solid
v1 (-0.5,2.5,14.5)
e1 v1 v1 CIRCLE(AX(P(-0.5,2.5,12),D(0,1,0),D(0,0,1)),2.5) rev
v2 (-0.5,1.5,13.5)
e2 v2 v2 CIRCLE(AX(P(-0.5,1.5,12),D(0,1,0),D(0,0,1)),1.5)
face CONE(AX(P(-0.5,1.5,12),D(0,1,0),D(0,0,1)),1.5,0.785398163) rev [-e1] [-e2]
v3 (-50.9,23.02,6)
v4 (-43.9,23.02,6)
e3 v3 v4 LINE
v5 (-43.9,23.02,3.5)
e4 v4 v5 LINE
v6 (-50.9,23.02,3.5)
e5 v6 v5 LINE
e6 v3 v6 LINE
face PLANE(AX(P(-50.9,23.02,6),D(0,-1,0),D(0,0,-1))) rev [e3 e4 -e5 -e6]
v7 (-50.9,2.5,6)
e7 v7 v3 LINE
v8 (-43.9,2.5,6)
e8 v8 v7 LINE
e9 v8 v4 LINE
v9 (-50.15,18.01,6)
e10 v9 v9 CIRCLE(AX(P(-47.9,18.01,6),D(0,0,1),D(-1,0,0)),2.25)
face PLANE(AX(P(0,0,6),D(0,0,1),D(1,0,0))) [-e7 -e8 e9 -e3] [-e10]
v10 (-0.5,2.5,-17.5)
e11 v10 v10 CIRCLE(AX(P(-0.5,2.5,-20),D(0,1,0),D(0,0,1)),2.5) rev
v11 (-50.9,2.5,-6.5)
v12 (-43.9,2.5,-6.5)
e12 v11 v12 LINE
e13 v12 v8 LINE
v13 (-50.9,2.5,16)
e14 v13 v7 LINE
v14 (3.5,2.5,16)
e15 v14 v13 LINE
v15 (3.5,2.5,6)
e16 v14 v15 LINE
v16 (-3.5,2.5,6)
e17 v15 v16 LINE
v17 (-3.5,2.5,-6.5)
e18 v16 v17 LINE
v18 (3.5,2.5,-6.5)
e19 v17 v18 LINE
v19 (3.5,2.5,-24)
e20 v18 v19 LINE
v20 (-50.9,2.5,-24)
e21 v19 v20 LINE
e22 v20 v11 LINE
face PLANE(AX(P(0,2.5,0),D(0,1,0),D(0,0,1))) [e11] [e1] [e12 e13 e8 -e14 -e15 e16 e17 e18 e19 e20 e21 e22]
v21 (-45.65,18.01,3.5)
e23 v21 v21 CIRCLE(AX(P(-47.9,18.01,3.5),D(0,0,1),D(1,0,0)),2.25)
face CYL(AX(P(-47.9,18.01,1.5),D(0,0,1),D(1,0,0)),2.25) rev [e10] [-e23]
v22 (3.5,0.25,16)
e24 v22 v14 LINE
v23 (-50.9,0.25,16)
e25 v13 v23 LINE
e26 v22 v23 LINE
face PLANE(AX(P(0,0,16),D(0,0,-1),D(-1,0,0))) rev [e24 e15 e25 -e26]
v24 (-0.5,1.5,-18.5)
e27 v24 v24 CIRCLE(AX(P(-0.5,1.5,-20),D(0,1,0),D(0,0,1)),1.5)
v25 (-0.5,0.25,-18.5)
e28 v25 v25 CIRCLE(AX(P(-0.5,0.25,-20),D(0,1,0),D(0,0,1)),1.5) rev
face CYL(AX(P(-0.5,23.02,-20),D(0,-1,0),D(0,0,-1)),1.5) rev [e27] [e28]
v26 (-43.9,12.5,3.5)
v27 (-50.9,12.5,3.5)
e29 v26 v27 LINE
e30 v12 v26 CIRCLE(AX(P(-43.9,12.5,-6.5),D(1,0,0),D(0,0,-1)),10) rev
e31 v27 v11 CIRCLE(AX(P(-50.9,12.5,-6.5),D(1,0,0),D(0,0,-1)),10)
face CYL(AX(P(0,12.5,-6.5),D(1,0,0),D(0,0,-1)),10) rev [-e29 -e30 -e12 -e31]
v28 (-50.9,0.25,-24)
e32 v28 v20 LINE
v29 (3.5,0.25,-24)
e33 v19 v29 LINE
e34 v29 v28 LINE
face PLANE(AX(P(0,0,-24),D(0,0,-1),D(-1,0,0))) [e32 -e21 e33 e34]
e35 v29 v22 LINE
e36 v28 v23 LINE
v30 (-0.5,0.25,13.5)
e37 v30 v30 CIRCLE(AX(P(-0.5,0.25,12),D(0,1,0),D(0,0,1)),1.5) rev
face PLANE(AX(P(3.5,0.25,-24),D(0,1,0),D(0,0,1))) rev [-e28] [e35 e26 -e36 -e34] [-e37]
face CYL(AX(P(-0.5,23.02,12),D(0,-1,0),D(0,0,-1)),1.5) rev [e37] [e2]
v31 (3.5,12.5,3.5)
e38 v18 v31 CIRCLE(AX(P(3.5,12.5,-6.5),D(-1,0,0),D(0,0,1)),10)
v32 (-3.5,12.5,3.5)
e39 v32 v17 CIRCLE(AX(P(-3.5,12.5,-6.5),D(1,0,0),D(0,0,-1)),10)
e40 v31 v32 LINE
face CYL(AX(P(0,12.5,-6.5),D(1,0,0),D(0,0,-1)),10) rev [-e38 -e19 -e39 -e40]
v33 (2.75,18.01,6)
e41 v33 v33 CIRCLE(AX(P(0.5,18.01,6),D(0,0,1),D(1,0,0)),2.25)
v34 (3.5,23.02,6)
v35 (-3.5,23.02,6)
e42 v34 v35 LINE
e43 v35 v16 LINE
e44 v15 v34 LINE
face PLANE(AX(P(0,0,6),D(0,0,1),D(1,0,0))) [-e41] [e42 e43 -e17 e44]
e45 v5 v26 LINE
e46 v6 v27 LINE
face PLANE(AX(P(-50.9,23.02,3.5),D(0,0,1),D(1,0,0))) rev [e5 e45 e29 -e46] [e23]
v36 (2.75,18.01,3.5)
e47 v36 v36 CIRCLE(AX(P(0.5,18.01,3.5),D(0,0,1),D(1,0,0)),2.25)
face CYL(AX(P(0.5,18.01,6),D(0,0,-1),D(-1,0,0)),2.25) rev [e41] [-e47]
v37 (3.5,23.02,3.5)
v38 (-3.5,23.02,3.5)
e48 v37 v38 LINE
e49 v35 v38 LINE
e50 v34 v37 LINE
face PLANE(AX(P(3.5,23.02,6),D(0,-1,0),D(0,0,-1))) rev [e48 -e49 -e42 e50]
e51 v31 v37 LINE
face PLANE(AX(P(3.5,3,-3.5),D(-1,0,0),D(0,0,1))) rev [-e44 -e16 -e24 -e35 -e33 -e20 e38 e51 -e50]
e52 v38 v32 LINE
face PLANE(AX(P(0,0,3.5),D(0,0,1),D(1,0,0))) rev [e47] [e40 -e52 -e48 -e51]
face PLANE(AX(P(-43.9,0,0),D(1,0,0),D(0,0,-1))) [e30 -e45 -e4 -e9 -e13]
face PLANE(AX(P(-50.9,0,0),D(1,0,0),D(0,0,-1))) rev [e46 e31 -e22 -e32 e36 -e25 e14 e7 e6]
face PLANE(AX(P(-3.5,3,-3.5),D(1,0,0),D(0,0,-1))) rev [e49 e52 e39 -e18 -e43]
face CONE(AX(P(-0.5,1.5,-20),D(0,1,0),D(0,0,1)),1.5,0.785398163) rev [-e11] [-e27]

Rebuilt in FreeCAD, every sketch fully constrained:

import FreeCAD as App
import Part
import Sketcher
from FreeCAD import Vector
Q = App.Units.Quantity


def edges_at(feature, points):
    """Names of the edges that pass closest to the given points."""
    edges = feature.Shape.Edges
    near = lambda p: min(range(len(edges)), key=lambda i: edges[i].distToShape(Part.Vertex(*p))[0])
    return sorted({f"Edge{near(p) + 1}" for p in points})


def add_polygon(sketch, points):
    """Adds a closed chain of lines whose ends are joined by coincident constraints."""
    first, n = sketch.GeometryCount, len(points)
    for a, b in zip(points, points[1:] + points[:1]):
        sketch.addGeometry(Part.LineSegment(App.Vector(*a, 0), App.Vector(*b, 0)), False)
    for i in range(n):
        sketch.addConstraint(Sketcher.Constraint("Coincident", first + i, 2, first + (i + 1) % n, 1))

doc = App.newDocument("Part")
body = doc.addObject("PartDesign::Body", "Body")

sketch1 = body.newObject("Sketcher::SketchObject", "Sketch")
sketch1.AttachmentSupport = (doc.getObject("XZ_Plane"), [""])
sketch1.MapMode = "FlatFace"
add_polygon(sketch1, [(-4, -4), (-4, 4), (4, 4), (4, -4)])
sketch1.addConstraint(Sketcher.Constraint("Vertical", 0))
sketch1.addConstraint(Sketcher.Constraint("Horizontal", 1))
sketch1.addConstraint(Sketcher.Constraint("Vertical", 2))
sketch1.addConstraint(Sketcher.Constraint("Horizontal", 3))
sketch1.addConstraint(Sketcher.Constraint("Symmetric", 0, 2, 2, 2, -1, 1))
sketch1.addConstraint(Sketcher.Constraint("Equal", 3, 0))
sketch1.addConstraint(Sketcher.Constraint("DistanceX", 1, 1, 1, 2, Q("7 mm")))
pad1 = body.newObject("PartDesign::Pad", "Pad")
pad1.Profile = sketch1
pad1.Length = 3
pad1.Reversed = True

sketch2 = body.newObject("Sketcher::SketchObject", "Sketch001")
sketch2.AttachmentSupport = (doc.getObject("XY_Plane"), [""])
sketch2.MapMode = "FlatFace"
sketch2.AttachmentOffset = App.Placement(Vector(0, 0, 3.5), App.Rotation())
add_polygon(sketch2, [(3.5, 23), (-3.5, 23), (-3.5, 0), (3.5, 0)])
sketch2.addGeometry(Part.Circle(Vector(0.5, 18, 0), Vector(0, 0, 1), 2.2), False)
sketch2.addConstraint(Sketcher.Constraint("Horizontal", 0))
sketch2.addConstraint(Sketcher.Constraint("Vertical", 1))
sketch2.addConstraint(Sketcher.Constraint("Horizontal", 2))
sketch2.addConstraint(Sketcher.Constraint("Vertical", 3))
sketch2.addConstraint(Sketcher.Constraint("Symmetric", 1, 2, 2, 2, -1, 1))
sketch2.addConstraint(Sketcher.Constraint("Diameter", 4, Q("4.5 mm")))
sketch2.addConstraint(Sketcher.Constraint("DistanceX", 0, 2, 0, 1, Q("7 mm")))
sketch2.addConstraint(Sketcher.Constraint("DistanceX", 0, 2, 4, 3, Q("4 mm")))
sketch2.addConstraint(Sketcher.Constraint("DistanceY", 1, 2, 1, 1, Q("23.02 mm")))
sketch2.addConstraint(Sketcher.Constraint("DistanceY", -1, 1, 4, 3, Q("18.01 mm")))
pad2 = body.newObject("PartDesign::Pad", "Pad001")
pad2.Profile = sketch2
pad2.Length = 2.5

sketch3 = body.newObject("Sketcher::SketchObject", "Sketch002")
sketch3.AttachmentSupport = (doc.getObject("XZ_Plane"), [""])
sketch3.MapMode = "FlatFace"
add_polygon(sketch3, [(-4, 6), (-4, -4), (4, -4), (4, 6)])
sketch3.addConstraint(Sketcher.Constraint("Vertical", 0))
sketch3.addConstraint(Sketcher.Constraint("Horizontal", 1))
sketch3.addConstraint(Sketcher.Constraint("Vertical", 2))
sketch3.addConstraint(Sketcher.Constraint("Horizontal", 3))
sketch3.addConstraint(Sketcher.Constraint("DistanceX", 1, 1, 1, 2, Q("7 mm")))
sketch3.addConstraint(Sketcher.Constraint("DistanceY", 0, 2, 0, 1, Q("9.5 mm")))
sketch3.addConstraint(Sketcher.Constraint("DistanceY", -1, 1, 2, 2, Q("6 mm")))
sketch3.addConstraint(Sketcher.Constraint("DistanceX", 0, 2, -1, 1, Q("3.5 mm")))
pad3 = body.newObject("PartDesign::Pad", "Pad002")
pad3.Profile = sketch3
pad3.Length = 2

sketch4 = body.newObject("Sketcher::SketchObject", "Sketch003")
sketch4.AttachmentSupport = (doc.getObject("XY_Plane"), [""])
sketch4.MapMode = "FlatFace"
sketch4.AttachmentOffset = App.Placement(Vector(0, 0, -3.5), App.Rotation())
add_polygon(sketch4, [(4, 3), (4, -2), (-4, -2), (-4, 3)])
sketch4.addConstraint(Sketcher.Constraint("Vertical", 0))
sketch4.addConstraint(Sketcher.Constraint("Horizontal", 1))
sketch4.addConstraint(Sketcher.Constraint("Vertical", 2))
sketch4.addConstraint(Sketcher.Constraint("Horizontal", 3))
sketch4.addConstraint(Sketcher.Constraint("DistanceX", 1, 2, 1, 1, Q("7 mm")))
sketch4.addConstraint(Sketcher.Constraint("DistanceY", 0, 2, 0, 1, Q("5 mm")))
sketch4.addConstraint(Sketcher.Constraint("DistanceY", 0, 2, -1, 1, Q("2 mm")))
sketch4.addConstraint(Sketcher.Constraint("DistanceX", -1, 1, 0, 2, Q("3.5 mm")))
pad4 = body.newObject("PartDesign::Pad", "Pad003")
pad4.Profile = sketch4
pad4.Length = 20.02
pad4.Reversed = True

sketch5 = body.newObject("Sketcher::SketchObject", "Sketch004")
sketch5.AttachmentSupport = (doc.getObject("YZ_Plane"), [""])
sketch5.MapMode = "FlatFace"
sketch5.AttachmentOffset = App.Placement(Vector(0, 0, -3.5), App.Rotation())
add_polygon(sketch5, [(3, -24), (-2, -24), (-2, 6), (3, 6)])
sketch5.addConstraint(Sketcher.Constraint("Horizontal", 0))
sketch5.addConstraint(Sketcher.Constraint("Vertical", 1))
sketch5.addConstraint(Sketcher.Constraint("Horizontal", 2))
sketch5.addConstraint(Sketcher.Constraint("Vertical", 3))
sketch5.addConstraint(Sketcher.Constraint("DistanceX", 0, 2, 0, 1, Q("5 mm")))
sketch5.addConstraint(Sketcher.Constraint("DistanceX", 0, 2, -1, 1, Q("2 mm")))
sketch5.addConstraint(Sketcher.Constraint("DistanceY", -1, 1, 1, 2, Q("6 mm")))
sketch5.addConstraint(Sketcher.Constraint("DistanceY", 1, 1, 1, 2, Q("29.52 mm")))
pad5 = body.newObject("PartDesign::Pad", "Pad004")
pad5.Profile = sketch5
pad5.Length = 40.4
pad5.Reversed = True

sketch6 = body.newObject("Sketcher::SketchObject", "Sketch005")
sketch6.AttachmentSupport = (doc.getObject("YZ_Plane"), [""])
sketch6.MapMode = "FlatFace"
sketch6.AttachmentOffset = App.Placement(Vector(0, 0, -43.9), App.Rotation())
add_polygon(sketch6, [(23, 6), (23, 3.5), (3, 3.5), (3, -23.5), (-2, -23.5), (-2, 6)])
sketch6.addConstraint(Sketcher.Constraint("Vertical", 0))
sketch6.addConstraint(Sketcher.Constraint("Horizontal", 1))
sketch6.addConstraint(Sketcher.Constraint("Vertical", 2))
sketch6.addConstraint(Sketcher.Constraint("Horizontal", 3))
sketch6.addConstraint(Sketcher.Constraint("Vertical", 4))
sketch6.addConstraint(Sketcher.Constraint("Horizontal", 5))
sketch6.addConstraint(Sketcher.Constraint("DistanceX", 3, 2, 3, 1, Q("5 mm")))
sketch6.addConstraint(Sketcher.Constraint("DistanceY", 0, 2, 0, 1, Q("2.5 mm")))
sketch6.addConstraint(Sketcher.Constraint("DistanceX", -1, 1, 1, 2, Q("3 mm")))
sketch6.addConstraint(Sketcher.Constraint("DistanceY", -1, 1, 4, 2, Q("6 mm")))
sketch6.addConstraint(Sketcher.Constraint("DistanceX", 1, 2, 1, 1, Q("20.02 mm")))
sketch6.addConstraint(Sketcher.Constraint("DistanceY", 2, 2, 2, 1, Q("27.02 mm")))
pad6 = body.newObject("PartDesign::Pad", "Pad005")
pad6.Profile = sketch6
pad6.Length = 7
pad6.Reversed = True

sketch7 = body.newObject("Sketcher::SketchObject", "Sketch006")
sketch7.AttachmentSupport = (doc.getObject("XY_Plane"), [""])
sketch7.MapMode = "FlatFace"
sketch7.AttachmentOffset = App.Placement(Vector(0, 0, 6), App.Rotation())
sketch7.addGeometry(Part.Circle(Vector(-47.9, 18, 0), Vector(0, 0, 1), 2.2), False)
sketch7.addConstraint(Sketcher.Constraint("Diameter", 0, Q("4.5 mm")))
sketch7.addConstraint(Sketcher.Constraint("DistanceX", 0, 3, -1, 1, Q("47.9 mm")))
sketch7.addConstraint(Sketcher.Constraint("DistanceY", -1, 1, 0, 3, Q("18.01 mm")))
pocket1 = body.newObject("PartDesign::Pocket", "Pocket")
pocket1.Profile = sketch7
pocket1.Length = 4.5

sketch8 = body.newObject("Sketcher::SketchObject", "Sketch007")
sketch8.AttachmentSupport = (doc.getObject("XY_Plane"), [""])
sketch8.MapMode = "FlatFace"
sketch8.AttachmentOffset = App.Placement(Vector(0, 0, -23.52), App.Rotation())
add_polygon(sketch8, [(4, 3), (4, -2), (-51, -2), (-51, 3)])
sketch8.addConstraint(Sketcher.Constraint("Vertical", 0))
sketch8.addConstraint(Sketcher.Constraint("Horizontal", 1))
sketch8.addConstraint(Sketcher.Constraint("Vertical", 2))
sketch8.addConstraint(Sketcher.Constraint("Horizontal", 3))
sketch8.addConstraint(Sketcher.Constraint("DistanceY", 0, 2, 0, 1, Q("5 mm")))
sketch8.addConstraint(Sketcher.Constraint("DistanceX", 1, 2, 1, 1, Q("54.4 mm")))
sketch8.addConstraint(Sketcher.Constraint("DistanceY", 0, 2, -1, 1, Q("2 mm")))
sketch8.addConstraint(Sketcher.Constraint("DistanceX", -1, 1, 0, 2, Q("3.5 mm")))
pad7 = body.newObject("PartDesign::Pad", "Pad006")
pad7.Profile = sketch8
pad7.Length = 0.48
pad7.Reversed = True

sketch9 = body.newObject("Sketcher::SketchObject", "Sketch008")
sketch9.AttachmentSupport = (doc.getObject("XZ_Plane"), [""])
sketch9.MapMode = "FlatFace"
sketch9.AttachmentOffset = App.Placement(Vector(0, 0, -3), App.Rotation())
add_polygon(sketch9, [(3.5, 3.5), (3.5, -24), (-50.9, -24), (-50.9, 3.5), (-43.9, 3.5), (-43.9, 6), (-3.5, 6), (-3.5, 3.5)])
sketch9.addConstraint(Sketcher.Constraint("Vertical", 0))
sketch9.addConstraint(Sketcher.Constraint("Horizontal", 1))
sketch9.addConstraint(Sketcher.Constraint("Vertical", 2))
sketch9.addConstraint(Sketcher.Constraint("Horizontal", 3))
sketch9.addConstraint(Sketcher.Constraint("Vertical", 4))
sketch9.addConstraint(Sketcher.Constraint("Horizontal", 5))
sketch9.addConstraint(Sketcher.Constraint("Vertical", 6))
sketch9.addConstraint(Sketcher.Constraint("Horizontal", 7))
sketch9.addConstraint(Sketcher.Constraint("Horizontal", 3, 2, 6, 2))
sketch9.addConstraint(Sketcher.Constraint("Equal", 3, 7))
sketch9.addConstraint(Sketcher.Constraint("DistanceX", 3, 1, 3, 2, Q("7 mm")))
sketch9.addConstraint(Sketcher.Constraint("DistanceX", 1, 2, 1, 1, Q("54.4 mm")))
sketch9.addConstraint(Sketcher.Constraint("DistanceY", 0, 2, 0, 1, Q("27.5 mm")))
sketch9.addConstraint(Sketcher.Constraint("DistanceY", 4, 1, 4, 2, Q("2.5 mm")))
sketch9.addConstraint(Sketcher.Constraint("DistanceY", 0, 2, -1, 1, Q("24 mm")))
sketch9.addConstraint(Sketcher.Constraint("DistanceX", -1, 1, 0, 2, Q("3.5 mm")))
pocket2 = body.newObject("PartDesign::Pocket", "Pocket001")
pocket2.Profile = sketch9
pocket2.Length = 0.5
pocket2.Reversed = True

sketch10 = body.newObject("Sketcher::SketchObject", "Sketch009")
sketch10.AttachmentSupport = (doc.getObject("XY_Plane"), [""])
sketch10.MapMode = "FlatFace"
sketch10.AttachmentOffset = App.Placement(Vector(0, 0, 6), App.Rotation())
add_polygon(sketch10, [(-50.9, 2.5), (-50.9, -2), (3.5, -2), (3.5, 2.5)])
sketch10.addConstraint(Sketcher.Constraint("Vertical", 0))
sketch10.addConstraint(Sketcher.Constraint("Horizontal", 1))
sketch10.addConstraint(Sketcher.Constraint("Vertical", 2))
sketch10.addConstraint(Sketcher.Constraint("Horizontal", 3))
sketch10.addConstraint(Sketcher.Constraint("DistanceX", 1, 1, 1, 2, Q("54.4 mm")))
sketch10.addConstraint(Sketcher.Constraint("DistanceY", 0, 2, 0, 1, Q("4.5 mm")))
sketch10.addConstraint(Sketcher.Constraint("DistanceY", 0, 2, -1, 1, Q("2 mm")))
sketch10.addConstraint(Sketcher.Constraint("DistanceX", 0, 2, -1, 1, Q("50.9 mm")))
pad8 = body.newObject("PartDesign::Pad", "Pad007")
pad8.Profile = sketch10
pad8.Length = 10

sketch11 = body.newObject("Sketcher::SketchObject", "Sketch010")
sketch11.AttachmentSupport = (doc.getObject("XZ_Plane"), [""])
sketch11.MapMode = "FlatFace"
sketch11.AttachmentOffset = App.Placement(Vector(0, 0, 2), App.Rotation())
sketch11.addGeometry(Part.Circle(Vector(-0.5, 12, 0), Vector(0, 0, 1), 1.5), False)
sketch11.addGeometry(Part.Circle(Vector(-0.5, -20, 0), Vector(0, 0, 1), 1.5), False)
sketch11.addConstraint(Sketcher.Constraint("Equal", 0, 1))
sketch11.addConstraint(Sketcher.Constraint("Vertical", 0, 3, 1, 3))
sketch11.addConstraint(Sketcher.Constraint("Diameter", 0, Q("3 mm")))
sketch11.addConstraint(Sketcher.Constraint("DistanceY", -1, 1, 0, 3, Q("12 mm")))
sketch11.addConstraint(Sketcher.Constraint("DistanceY", 1, 3, -1, 1, Q("20 mm")))
sketch11.addConstraint(Sketcher.Constraint("DistanceX", 0, 3, -1, 1, Q("0.5 mm")))
pocket3 = body.newObject("PartDesign::Pocket", "Pocket002")
pocket3.Profile = sketch11
pocket3.Type = "ThroughAll"
doc.recompute()

chamfer = body.newObject("PartDesign::Chamfer", "Chamfer")
chamfer.Base = (pocket3, edges_at(pocket3, [(-0.5, 2.5, 13.5), (-0.5, 2.5, -18.5)]))
chamfer.Size = 1

sketch12 = body.newObject("Sketcher::SketchObject", "Sketch011")
sketch12.AttachmentSupport = (doc.getObject("XY_Plane"), [""])
sketch12.MapMode = "FlatFace"
sketch12.AttachmentOffset = App.Placement(Vector(0, 0, 16), App.Rotation())
add_polygon(sketch12, [(-50.9, 0.2), (-50.9, -2), (3.5, -2), (3.5, 0.2)])
sketch12.addConstraint(Sketcher.Constraint("Vertical", 0))
sketch12.addConstraint(Sketcher.Constraint("Horizontal", 1))
sketch12.addConstraint(Sketcher.Constraint("Vertical", 2))
sketch12.addConstraint(Sketcher.Constraint("Horizontal", 3))
sketch12.addConstraint(Sketcher.Constraint("DistanceX", 1, 1, 1, 2, Q("54.4 mm")))
sketch12.addConstraint(Sketcher.Constraint("DistanceY", 0, 2, -1, 1, Q("2 mm")))
sketch12.addConstraint(Sketcher.Constraint("DistanceY", 0, 2, 0, 1, Q("2.25 mm")))
sketch12.addConstraint(Sketcher.Constraint("DistanceX", 0, 2, -1, 1, Q("50.9 mm")))
pocket4 = body.newObject("PartDesign::Pocket", "Pocket003")
pocket4.Profile = sketch12
pocket4.Type = "ThroughAll"
doc.recompute()

fillet = body.newObject("PartDesign::Fillet", "Fillet")
fillet.Base = (pocket4, edges_at(pocket4, [(0, 2.5, 3.5), (-47.4, 2.5, 3.5)]))
fillet.Radius = 10

doc.recompute()
